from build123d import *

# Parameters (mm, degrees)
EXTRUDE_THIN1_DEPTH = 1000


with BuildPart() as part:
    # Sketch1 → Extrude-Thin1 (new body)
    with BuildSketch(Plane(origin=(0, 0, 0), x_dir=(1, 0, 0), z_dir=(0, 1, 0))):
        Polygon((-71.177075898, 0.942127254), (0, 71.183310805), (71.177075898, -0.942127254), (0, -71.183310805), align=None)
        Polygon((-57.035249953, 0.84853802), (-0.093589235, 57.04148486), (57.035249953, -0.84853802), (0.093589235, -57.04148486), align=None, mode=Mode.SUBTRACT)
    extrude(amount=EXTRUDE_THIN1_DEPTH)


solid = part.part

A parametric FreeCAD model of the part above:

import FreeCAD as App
import Part
import Sketcher

V = App.Vector

doc = App.newDocument("Part")
body = doc.addObject("PartDesign::Body", "Body")

sketch1 = doc.addObject("Sketcher::SketchObject", "Sketch")
body.addObject(sketch1)
sketch1.AttachmentSupport = (doc.XZ_Plane, [""])
sketch1.MapMode = "FlatFace"
sketch1.addGeometry([
    Part.LineSegment(V(0, -71, 0), V(-71, -1, 0)),
    Part.LineSegment(V(-71, -1, 0), V(0, 71, 0)),
    Part.LineSegment(V(0, 71, 0), V(71, 1, 0)),
    Part.LineSegment(V(71, 1, 0), V(0, -71, 0)),
    Part.LineSegment(V(-57, -1, 0), V(0, -57, 0)),
    Part.LineSegment(V(0, -57, 0), V(57, 1, 0)),
    Part.LineSegment(V(57, 1, 0), V(0, 57, 0)),
    Part.LineSegment(V(0, 57, 0), V(-57, -1, 0)),
], False)
sketch1.addConstraint([
    Sketcher.Constraint("Coincident", 0, 2, 1, 1),
    Sketcher.Constraint("Coincident", 1, 2, 2, 1),
    Sketcher.Constraint("Coincident", 2, 2, 3, 1),
    Sketcher.Constraint("Coincident", 3, 2, 0, 1),
    Sketcher.Constraint("Coincident", 4, 2, 5, 1),
    Sketcher.Constraint("Coincident", 5, 2, 6, 1),
    Sketcher.Constraint("Coincident", 6, 2, 7, 1),
    Sketcher.Constraint("Coincident", 7, 2, 4, 1),
    Sketcher.Constraint("Symmetric", 0, 2, 2, 2, -1, 1),
    Sketcher.Constraint("Symmetric", 1, 2, 3, 2, -1, 1),
    Sketcher.Constraint("Symmetric", 4, 2, 6, 2, -1, 1),
    Sketcher.Constraint("Symmetric", 5, 2, 7, 2, -1, 1),
    Sketcher.Constraint("PointOnObject", 1, 2, -2),
    Sketcher.Constraint("Perpendicular", 0, 1),
    Sketcher.Constraint("Perpendicular", 3, 4),
    Sketcher.Constraint("Perpendicular", 4, 5),
    Sketcher.Constraint("Distance", 0, 100.0),
    Sketcher.Constraint("Distance", 4, 80.0),
    Sketcher.Constraint("Distance", 1, 101.332398),
    Sketcher.Constraint("Distance", 5, 81.332398),
])
pad1 = doc.addObject("PartDesign::Pad", "Pad")
body.addObject(pad1)
pad1.Profile = sketch1
pad1.Length = 1000
pad1.Reversed = True

doc.recompute()
